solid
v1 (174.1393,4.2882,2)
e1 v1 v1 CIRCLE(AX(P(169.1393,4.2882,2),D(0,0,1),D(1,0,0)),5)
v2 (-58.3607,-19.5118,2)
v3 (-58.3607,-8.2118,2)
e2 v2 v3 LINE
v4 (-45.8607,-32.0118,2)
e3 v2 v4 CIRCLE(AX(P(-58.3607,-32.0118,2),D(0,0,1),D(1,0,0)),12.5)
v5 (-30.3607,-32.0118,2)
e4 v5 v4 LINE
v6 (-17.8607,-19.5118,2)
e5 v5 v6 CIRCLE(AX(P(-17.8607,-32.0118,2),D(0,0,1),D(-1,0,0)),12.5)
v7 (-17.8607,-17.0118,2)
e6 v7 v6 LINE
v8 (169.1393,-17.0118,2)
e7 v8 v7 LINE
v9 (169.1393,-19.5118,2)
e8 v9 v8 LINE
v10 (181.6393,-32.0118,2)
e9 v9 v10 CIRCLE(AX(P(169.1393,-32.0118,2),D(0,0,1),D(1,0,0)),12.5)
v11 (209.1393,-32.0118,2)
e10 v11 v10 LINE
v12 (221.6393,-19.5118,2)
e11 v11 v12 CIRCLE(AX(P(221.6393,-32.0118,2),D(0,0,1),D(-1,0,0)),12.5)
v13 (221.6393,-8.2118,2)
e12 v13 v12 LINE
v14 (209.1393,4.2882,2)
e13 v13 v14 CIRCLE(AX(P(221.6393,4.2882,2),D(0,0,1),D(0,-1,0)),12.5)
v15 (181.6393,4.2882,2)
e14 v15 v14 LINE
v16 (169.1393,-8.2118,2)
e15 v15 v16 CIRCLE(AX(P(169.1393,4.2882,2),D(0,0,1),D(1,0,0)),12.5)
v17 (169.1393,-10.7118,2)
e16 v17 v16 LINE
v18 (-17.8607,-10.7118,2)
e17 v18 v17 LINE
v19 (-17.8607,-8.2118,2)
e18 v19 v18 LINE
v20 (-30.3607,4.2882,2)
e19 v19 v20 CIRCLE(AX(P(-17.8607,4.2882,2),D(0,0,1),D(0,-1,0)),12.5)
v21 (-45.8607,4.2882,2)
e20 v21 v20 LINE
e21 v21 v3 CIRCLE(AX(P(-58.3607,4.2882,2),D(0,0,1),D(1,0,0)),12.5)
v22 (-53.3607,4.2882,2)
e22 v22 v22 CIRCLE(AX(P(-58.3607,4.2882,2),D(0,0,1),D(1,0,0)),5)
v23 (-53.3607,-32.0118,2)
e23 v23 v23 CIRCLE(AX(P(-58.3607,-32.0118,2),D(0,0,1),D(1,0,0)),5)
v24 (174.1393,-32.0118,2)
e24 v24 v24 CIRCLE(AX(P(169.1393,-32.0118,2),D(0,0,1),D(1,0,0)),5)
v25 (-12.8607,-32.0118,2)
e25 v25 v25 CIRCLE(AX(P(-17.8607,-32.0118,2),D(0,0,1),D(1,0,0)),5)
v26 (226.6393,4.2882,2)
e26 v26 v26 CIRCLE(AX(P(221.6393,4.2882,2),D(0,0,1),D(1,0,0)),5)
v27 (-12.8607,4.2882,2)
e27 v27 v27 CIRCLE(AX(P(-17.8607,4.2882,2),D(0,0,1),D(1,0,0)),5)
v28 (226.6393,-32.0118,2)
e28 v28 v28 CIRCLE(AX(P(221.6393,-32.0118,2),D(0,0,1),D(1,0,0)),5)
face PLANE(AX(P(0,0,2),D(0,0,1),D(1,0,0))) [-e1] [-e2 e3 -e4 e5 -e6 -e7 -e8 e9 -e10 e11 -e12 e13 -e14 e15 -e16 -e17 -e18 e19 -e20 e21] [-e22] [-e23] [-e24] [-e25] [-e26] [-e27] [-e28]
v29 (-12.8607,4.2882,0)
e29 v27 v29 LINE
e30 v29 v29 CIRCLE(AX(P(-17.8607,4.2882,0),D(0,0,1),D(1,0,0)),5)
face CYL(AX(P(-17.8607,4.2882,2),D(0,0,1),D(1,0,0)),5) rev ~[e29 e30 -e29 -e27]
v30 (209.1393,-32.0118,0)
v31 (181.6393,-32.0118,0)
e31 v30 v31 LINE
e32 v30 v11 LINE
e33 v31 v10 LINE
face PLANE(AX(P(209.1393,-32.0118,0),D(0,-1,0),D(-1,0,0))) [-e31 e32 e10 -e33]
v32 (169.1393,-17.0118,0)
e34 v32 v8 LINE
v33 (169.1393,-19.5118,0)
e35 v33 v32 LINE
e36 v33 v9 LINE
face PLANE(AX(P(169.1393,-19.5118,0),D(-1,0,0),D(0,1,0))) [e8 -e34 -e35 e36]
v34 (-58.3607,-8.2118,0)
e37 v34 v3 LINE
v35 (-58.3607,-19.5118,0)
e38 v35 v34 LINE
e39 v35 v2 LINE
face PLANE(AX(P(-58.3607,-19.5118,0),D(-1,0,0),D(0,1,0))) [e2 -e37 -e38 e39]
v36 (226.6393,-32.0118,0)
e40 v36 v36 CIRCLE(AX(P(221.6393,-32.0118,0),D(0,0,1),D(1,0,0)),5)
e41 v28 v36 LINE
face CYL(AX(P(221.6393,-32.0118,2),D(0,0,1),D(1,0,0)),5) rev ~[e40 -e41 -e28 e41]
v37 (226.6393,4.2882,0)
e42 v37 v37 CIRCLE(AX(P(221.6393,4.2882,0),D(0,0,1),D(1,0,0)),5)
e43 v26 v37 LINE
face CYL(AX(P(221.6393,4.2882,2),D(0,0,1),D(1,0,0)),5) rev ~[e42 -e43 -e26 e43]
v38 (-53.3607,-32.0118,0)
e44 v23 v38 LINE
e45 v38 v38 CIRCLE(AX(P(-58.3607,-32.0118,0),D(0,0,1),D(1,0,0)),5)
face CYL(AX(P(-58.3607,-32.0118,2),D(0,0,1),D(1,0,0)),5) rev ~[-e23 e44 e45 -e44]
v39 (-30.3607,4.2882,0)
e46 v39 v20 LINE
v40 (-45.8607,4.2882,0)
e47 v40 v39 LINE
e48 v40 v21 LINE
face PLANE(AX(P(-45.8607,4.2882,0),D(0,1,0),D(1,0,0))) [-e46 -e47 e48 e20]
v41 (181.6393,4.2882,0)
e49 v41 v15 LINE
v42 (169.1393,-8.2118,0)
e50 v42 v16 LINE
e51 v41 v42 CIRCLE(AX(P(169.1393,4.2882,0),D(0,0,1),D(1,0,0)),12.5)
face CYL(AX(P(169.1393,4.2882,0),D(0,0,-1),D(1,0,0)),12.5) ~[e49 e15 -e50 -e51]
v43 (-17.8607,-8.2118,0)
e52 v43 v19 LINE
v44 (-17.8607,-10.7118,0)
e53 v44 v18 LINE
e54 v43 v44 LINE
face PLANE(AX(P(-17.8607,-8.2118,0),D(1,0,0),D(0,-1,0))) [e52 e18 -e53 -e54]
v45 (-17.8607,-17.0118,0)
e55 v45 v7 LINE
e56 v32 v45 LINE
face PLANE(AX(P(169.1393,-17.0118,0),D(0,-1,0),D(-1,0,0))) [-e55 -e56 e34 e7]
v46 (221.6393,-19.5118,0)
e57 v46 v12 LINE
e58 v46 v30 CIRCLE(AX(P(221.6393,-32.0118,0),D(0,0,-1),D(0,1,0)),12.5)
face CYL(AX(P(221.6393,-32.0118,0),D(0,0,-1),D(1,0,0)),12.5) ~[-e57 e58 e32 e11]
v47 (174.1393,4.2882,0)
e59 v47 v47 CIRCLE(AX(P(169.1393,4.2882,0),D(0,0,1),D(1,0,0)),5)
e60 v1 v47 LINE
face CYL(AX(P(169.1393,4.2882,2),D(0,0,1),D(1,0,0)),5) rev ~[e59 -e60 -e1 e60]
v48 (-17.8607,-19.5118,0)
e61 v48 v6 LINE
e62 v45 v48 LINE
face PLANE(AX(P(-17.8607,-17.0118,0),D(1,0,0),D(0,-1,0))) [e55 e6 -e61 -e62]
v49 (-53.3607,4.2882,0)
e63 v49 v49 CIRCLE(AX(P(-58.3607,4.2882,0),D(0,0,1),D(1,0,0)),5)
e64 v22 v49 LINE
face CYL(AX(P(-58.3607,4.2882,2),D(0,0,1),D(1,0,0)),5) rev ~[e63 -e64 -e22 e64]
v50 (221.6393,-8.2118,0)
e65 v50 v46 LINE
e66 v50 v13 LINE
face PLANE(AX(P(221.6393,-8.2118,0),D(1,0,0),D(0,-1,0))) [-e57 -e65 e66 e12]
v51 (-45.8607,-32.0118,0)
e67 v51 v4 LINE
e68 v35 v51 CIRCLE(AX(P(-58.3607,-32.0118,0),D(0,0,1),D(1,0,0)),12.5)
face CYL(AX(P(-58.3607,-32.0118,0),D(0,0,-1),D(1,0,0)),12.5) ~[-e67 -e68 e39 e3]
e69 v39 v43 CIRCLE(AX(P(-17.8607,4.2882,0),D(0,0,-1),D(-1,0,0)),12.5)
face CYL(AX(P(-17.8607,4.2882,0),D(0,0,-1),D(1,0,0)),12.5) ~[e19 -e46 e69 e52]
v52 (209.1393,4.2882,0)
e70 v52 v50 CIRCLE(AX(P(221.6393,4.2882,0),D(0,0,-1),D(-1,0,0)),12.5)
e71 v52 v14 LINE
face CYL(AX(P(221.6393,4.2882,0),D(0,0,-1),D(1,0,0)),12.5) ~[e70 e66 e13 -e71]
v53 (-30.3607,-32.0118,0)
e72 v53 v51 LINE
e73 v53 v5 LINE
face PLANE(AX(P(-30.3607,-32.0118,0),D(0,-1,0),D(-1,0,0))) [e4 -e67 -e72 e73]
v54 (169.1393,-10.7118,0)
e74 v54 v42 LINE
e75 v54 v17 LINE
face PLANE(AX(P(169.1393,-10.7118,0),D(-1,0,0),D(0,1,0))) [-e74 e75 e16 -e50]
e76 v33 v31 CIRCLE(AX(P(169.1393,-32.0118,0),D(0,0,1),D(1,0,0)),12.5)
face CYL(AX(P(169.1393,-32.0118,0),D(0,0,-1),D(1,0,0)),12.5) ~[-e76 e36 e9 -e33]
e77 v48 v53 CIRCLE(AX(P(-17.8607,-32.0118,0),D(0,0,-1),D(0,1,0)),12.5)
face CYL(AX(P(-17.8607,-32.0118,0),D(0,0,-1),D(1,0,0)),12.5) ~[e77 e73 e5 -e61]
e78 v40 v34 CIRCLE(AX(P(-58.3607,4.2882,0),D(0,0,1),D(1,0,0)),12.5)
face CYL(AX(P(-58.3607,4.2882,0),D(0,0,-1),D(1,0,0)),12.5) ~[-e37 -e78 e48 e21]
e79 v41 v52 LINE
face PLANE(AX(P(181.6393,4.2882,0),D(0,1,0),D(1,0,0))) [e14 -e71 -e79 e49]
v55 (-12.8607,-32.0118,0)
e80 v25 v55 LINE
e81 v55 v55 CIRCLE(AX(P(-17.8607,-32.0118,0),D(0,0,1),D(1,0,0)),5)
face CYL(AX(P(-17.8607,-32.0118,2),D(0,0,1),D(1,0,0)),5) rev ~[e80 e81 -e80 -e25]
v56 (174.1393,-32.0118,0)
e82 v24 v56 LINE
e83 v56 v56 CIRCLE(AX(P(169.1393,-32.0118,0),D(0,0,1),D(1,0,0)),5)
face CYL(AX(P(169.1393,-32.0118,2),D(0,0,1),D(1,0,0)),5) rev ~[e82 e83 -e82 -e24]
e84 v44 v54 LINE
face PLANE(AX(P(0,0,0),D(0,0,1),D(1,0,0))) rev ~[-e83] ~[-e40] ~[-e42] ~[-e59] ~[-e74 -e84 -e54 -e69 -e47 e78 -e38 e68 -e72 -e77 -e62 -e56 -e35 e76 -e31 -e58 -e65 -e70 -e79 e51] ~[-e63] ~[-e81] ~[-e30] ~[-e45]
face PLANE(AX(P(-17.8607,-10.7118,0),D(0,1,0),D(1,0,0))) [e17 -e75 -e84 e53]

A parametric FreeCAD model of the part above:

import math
import FreeCAD as App
import Part
import Sketcher
from FreeCAD import Vector
Q = App.Units.Quantity

doc = App.newDocument("Part")
body = doc.addObject("PartDesign::Body", "Body")

# Sketch on XY plane
sketch1 = body.newObject("Sketcher::SketchObject", "Sketch")
sketch1.AttachmentSupport = (doc.getObject("XY_Plane"), [""])
sketch1.MapMode = "FlatFace"
sketch1.addGeometry(Part.ArcOfCircle(Part.Circle(Vector(169.1, 4.3, 0), Vector(0, 0, 1), 12.5), math.radians(0), math.radians(270)), False)
sketch1.addGeometry(Part.LineSegment(Vector(169.1, -8.2, 0), Vector(169.1, -10.7, 0)), False)
sketch1.addGeometry(Part.LineSegment(Vector(169.1, -10.7, 0), Vector(-17.9, -10.7, 0)), False)
sketch1.addGeometry(Part.LineSegment(Vector(-17.9, -10.7, 0), Vector(-17.9, -8.2, 0)), False)
sketch1.addGeometry(Part.ArcOfCircle(Part.Circle(Vector(-17.9, 4.3, 0), Vector(0, 0, 1), 12.5), math.radians(-90), math.radians(180)), False)
sketch1.addGeometry(Part.LineSegment(Vector(-30.4, 4.3, 0), Vector(-45.9, 4.3, 0)), False)
sketch1.addGeometry(Part.ArcOfCircle(Part.Circle(Vector(-58.4, 4.3, 0), Vector(0, 0, 1), 12.5), math.radians(0), math.radians(270)), False)
sketch1.addGeometry(Part.LineSegment(Vector(-58.4, -8.2, 0), Vector(-58.4, -19.5, 0)), False)
sketch1.addGeometry(Part.ArcOfCircle(Part.Circle(Vector(-58.4, -32, 0), Vector(0, 0, 1), 12.5), math.radians(90), math.radians(360)), False)
sketch1.addGeometry(Part.LineSegment(Vector(-45.9, -32, 0), Vector(-30.4, -32, 0)), False)
sketch1.addGeometry(Part.ArcOfCircle(Part.Circle(Vector(-17.9, -32, 0), Vector(0, 0, 1), 12.5), math.radians(180), math.radians(450)), False)
sketch1.addGeometry(Part.LineSegment(Vector(-17.9, -19.5, 0), Vector(-17.9, -17, 0)), False)
sketch1.addGeometry(Part.LineSegment(Vector(-17.9, -17, 0), Vector(169.1, -17, 0)), False)
sketch1.addGeometry(Part.LineSegment(Vector(169.1, -17, 0), Vector(169.1, -19.5, 0)), False)
sketch1.addGeometry(Part.ArcOfCircle(Part.Circle(Vector(169.1, -32, 0), Vector(0, 0, 1), 12.5), math.radians(90), math.radians(360)), False)
sketch1.addGeometry(Part.LineSegment(Vector(181.6, -32, 0), Vector(209.1, -32, 0)), False)
sketch1.addGeometry(Part.ArcOfCircle(Part.Circle(Vector(221.6, -32, 0), Vector(0, 0, 1), 12.5), math.radians(180), math.radians(450)), False)
sketch1.addGeometry(Part.LineSegment(Vector(221.6, -19.5, 0), Vector(221.6, -8.2, 0)), False)
sketch1.addGeometry(Part.ArcOfCircle(Part.Circle(Vector(221.6, 4.3, 0), Vector(0, 0, 1), 12.5), math.radians(-90), math.radians(180)), False)
sketch1.addGeometry(Part.LineSegment(Vector(209.1, 4.3, 0), Vector(181.6, 4.3, 0)), False)
sketch1.addConstraint(Sketcher.Constraint("Coincident", 0, 2, 1, 1))
sketch1.addConstraint(Sketcher.Constraint("Coincident", 1, 2, 2, 1))
sketch1.addConstraint(Sketcher.Constraint("Coincident", 2, 2, 3, 1))
sketch1.addConstraint(Sketcher.Constraint("Coincident", 3, 2, 4, 1))
sketch1.addConstraint(Sketcher.Constraint("Coincident", 4, 2, 5, 1))
sketch1.addConstraint(Sketcher.Constraint("Coincident", 5, 2, 6, 1))
sketch1.addConstraint(Sketcher.Constraint("Coincident", 6, 2, 7, 1))
sketch1.addConstraint(Sketcher.Constraint("Coincident", 7, 2, 8, 1))
sketch1.addConstraint(Sketcher.Constraint("Coincident", 8, 2, 9, 1))
sketch1.addConstraint(Sketcher.Constraint("Coincident", 9, 2, 10, 1))
sketch1.addConstraint(Sketcher.Constraint("Coincident", 10, 2, 11, 1))
sketch1.addConstraint(Sketcher.Constraint("Coincident", 11, 2, 12, 1))
sketch1.addConstraint(Sketcher.Constraint("Coincident", 12, 2, 13, 1))
sketch1.addConstraint(Sketcher.Constraint("Coincident", 13, 2, 14, 1))
sketch1.addConstraint(Sketcher.Constraint("Coincident", 14, 2, 15, 1))
sketch1.addConstraint(Sketcher.Constraint("Coincident", 15, 2, 16, 1))
sketch1.addConstraint(Sketcher.Constraint("Coincident", 16, 2, 17, 1))
sketch1.addConstraint(Sketcher.Constraint("Coincident", 17, 2, 18, 1))
sketch1.addConstraint(Sketcher.Constraint("Coincident", 18, 2, 19, 1))
sketch1.addConstraint(Sketcher.Constraint("Coincident", 19, 2, 0, 1))
sketch1.addConstraint(Sketcher.Constraint("Vertical", 1))
sketch1.addConstraint(Sketcher.Constraint("Horizontal", 2))
sketch1.addConstraint(Sketcher.Constraint("Vertical", 3))
sketch1.addConstraint(Sketcher.Constraint("Horizontal", 5))
sketch1.addConstraint(Sketcher.Constraint("Vertical", 7))
sketch1.addConstraint(Sketcher.Constraint("Horizontal", 9))
sketch1.addConstraint(Sketcher.Constraint("Vertical", 11))
sketch1.addConstraint(Sketcher.Constraint("Horizontal", 12))
sketch1.addConstraint(Sketcher.Constraint("Vertical", 13))
sketch1.addConstraint(Sketcher.Constraint("Horizontal", 15))
sketch1.addConstraint(Sketcher.Constraint("Vertical", 17))
sketch1.addConstraint(Sketcher.Constraint("Horizontal", 19))
sketch1.addConstraint(Sketcher.Constraint("Equal", 0, 4))
sketch1.addConstraint(Sketcher.Constraint("Equal", 4, 6))
sketch1.addConstraint(Sketcher.Constraint("Equal", 6, 8))
sketch1.addConstraint(Sketcher.Constraint("Equal", 8, 10))
sketch1.addConstraint(Sketcher.Constraint("Equal", 10, 14))
sketch1.addConstraint(Sketcher.Constraint("Equal", 14, 16))
sketch1.addConstraint(Sketcher.Constraint("Equal", 16, 18))
sketch1.addConstraint(Sketcher.Constraint("Horizontal", 0, 3, 4, 3))
sketch1.addConstraint(Sketcher.Constraint("Horizontal", 4, 3, 6, 3))
sketch1.addConstraint(Sketcher.Constraint("Horizontal", 8, 3, 10, 3))
sketch1.addConstraint(Sketcher.Constraint("Horizontal", 10, 3, 14, 3))
sketch1.addConstraint(Sketcher.Constraint("Horizontal", 14, 3, 16, 3))
sketch1.addConstraint(Sketcher.Constraint("Horizontal", 6, 3, 18, 3))
sketch1.addConstraint(Sketcher.Constraint("Horizontal", 18, 3, 4, 2))
sketch1.addConstraint(Sketcher.Constraint("Horizontal", 16, 3, 8, 2))
sketch1.addConstraint(Sketcher.Constraint("Horizontal", 9, 2, 14, 2))
sketch1.addConstraint(Sketcher.Constraint("Horizontal", 5, 2, 18, 2))
sketch1.addConstraint(Sketcher.Constraint("Vertical", 6, 3, 8, 3))
sketch1.addConstraint(Sketcher.Constraint("Vertical", 4, 3, 10, 3))
sketch1.addConstraint(Sketcher.Constraint("Vertical", 0, 3, 14, 3))
sketch1.addConstraint(Sketcher.Constraint("Vertical", 16, 3, 18, 3))
sketch1.addConstraint(Sketcher.Constraint("Vertical", 14, 3, 0, 2))
sketch1.addConstraint(Sketcher.Constraint("Vertical", 10, 3, 2, 2))
sketch1.addConstraint(Sketcher.Constraint("Vertical", 8, 3, 6, 2))
sketch1.addConstraint(Sketcher.Constraint("Vertical", 3, 2, 10, 2))
sketch1.addConstraint(Sketcher.Constraint("Vertical", 1, 2, 12, 2))
sketch1.addConstraint(Sketcher.Constraint("Vertical", 18, 3, 16, 2))
sketch1.addConstraint(Sketcher.Constraint("Equal", 3, 11))
sketch1.addConstraint(Sketcher.Constraint("Radius", 0, Q("12.5 mm")))
sketch1.addConstraint(Sketcher.Constraint("DistanceY", 1, 2, 0, 3, Q("15 mm")))
sketch1.addConstraint(Sketcher.Constraint("DistanceX", 6, 3, 4, 3, Q("40.5 mm")))
sketch1.addConstraint(Sketcher.Constraint("DistanceY", 8, 3, 6, 3, Q("36.3 mm")))
sketch1.addConstraint(Sketcher.Constraint("DistanceX", 14, 3, 16, 3, Q("52.5 mm")))
sketch1.addConstraint(Sketcher.Constraint("DistanceX", 10, 3, 16, 3, Q("239.5 mm")))
sketch1.addConstraint(Sketcher.Constraint("DistanceX", -1, 1, 0, 3, Q("169.1393 mm")))
sketch1.addConstraint(Sketcher.Constraint("DistanceY", -1, 1, 0, 3, Q("4.2882 mm")))
pad1 = body.newObject("PartDesign::Pad", "Pad")
pad1.Profile = sketch1
pad1.Length = 2

# Sketch on XY plane
sketch2 = body.newObject("Sketcher::SketchObject", "Sketch001")
sketch2.AttachmentSupport = (doc.getObject("XY_Plane"), [""])
sketch2.MapMode = "FlatFace"
sketch2.AttachmentOffset = App.Placement(Vector(0, 0, 2), App.Rotation())
sketch2.addGeometry(Part.Circle(Vector(-58, 4, 0), Vector(0, 0, 1), 5), False)
sketch2.addGeometry(Part.Circle(Vector(-58, -32, 0), Vector(0, 0, 1), 5), False)
sketch2.addGeometry(Part.Circle(Vector(-18, -32, 0), Vector(0, 0, 1), 5), False)
sketch2.addGeometry(Part.Circle(Vector(-18, 4, 0), Vector(0, 0, 1), 5), False)
sketch2.addGeometry(Part.Circle(Vector(169, 4, 0), Vector(0, 0, 1), 5), False)
sketch2.addGeometry(Part.Circle(Vector(169, -32, 0), Vector(0, 0, 1), 5), False)
sketch2.addGeometry(Part.Circle(Vector(222, -32, 0), Vector(0, 0, 1), 5), False)
sketch2.addGeometry(Part.Circle(Vector(222, 4, 0), Vector(0, 0, 1), 5), False)
sketch2.addConstraint(Sketcher.Constraint("Equal", 0, 1))
sketch2.addConstraint(Sketcher.Constraint("Equal", 1, 2))
sketch2.addConstraint(Sketcher.Constraint("Equal", 2, 3))
sketch2.addConstraint(Sketcher.Constraint("Equal", 3, 4))
sketch2.addConstraint(Sketcher.Constraint("Equal", 4, 5))
sketch2.addConstraint(Sketcher.Constraint("Equal", 5, 6))
sketch2.addConstraint(Sketcher.Constraint("Equal", 6, 7))
sketch2.addConstraint(Sketcher.Constraint("Horizontal", 1, 3, 2, 3))
sketch2.addConstraint(Sketcher.Constraint("Horizontal", 0, 3, 3, 3))
sketch2.addConstraint(Sketcher.Constraint("Horizontal", 3, 3, 4, 3))
sketch2.addConstraint(Sketcher.Constraint("Horizontal", 2, 3, 5, 3))
sketch2.addConstraint(Sketcher.Constraint("Horizontal", 5, 3, 6, 3))
sketch2.addConstraint(Sketcher.Constraint("Horizontal", 4, 3, 7, 3))
sketch2.addConstraint(Sketcher.Constraint("Vertical", 0, 3, 1, 3))
sketch2.addConstraint(Sketcher.Constraint("Vertical", 2, 3, 3, 3))
sketch2.addConstraint(Sketcher.Constraint("Vertical", 4, 3, 5, 3))
sketch2.addConstraint(Sketcher.Constraint("Vertical", 6, 3, 7, 3))
sketch2.addConstraint(Sketcher.Constraint("Diameter", 0, Q("10 mm")))
sketch2.addConstraint(Sketcher.Constraint("DistanceX", 3, 3, 4, 3, Q("187 mm")))
sketch2.addConstraint(Sketcher.Constraint("DistanceX", 1, 3, 6, 3, Q("280 mm")))
sketch2.addConstraint(Sketcher.Constraint("DistanceY", 1, 3, 0, 3, Q("36.3 mm")))
sketch2.addConstraint(Sketcher.Constraint("DistanceX", 1, 3, 2, 3, Q("40.5 mm")))
sketch2.addConstraint(Sketcher.Constraint("DistanceX", 0, 3, -1, 1, Q("58.3607 mm")))
sketch2.addConstraint(Sketcher.Constraint("DistanceY", -1, 1, 0, 3, Q("4.2882 mm")))
pocket1 = body.newObject("PartDesign::Pocket", "Pocket")
pocket1.Profile = sketch2
pocket1.Length = 2

doc.recompute()
